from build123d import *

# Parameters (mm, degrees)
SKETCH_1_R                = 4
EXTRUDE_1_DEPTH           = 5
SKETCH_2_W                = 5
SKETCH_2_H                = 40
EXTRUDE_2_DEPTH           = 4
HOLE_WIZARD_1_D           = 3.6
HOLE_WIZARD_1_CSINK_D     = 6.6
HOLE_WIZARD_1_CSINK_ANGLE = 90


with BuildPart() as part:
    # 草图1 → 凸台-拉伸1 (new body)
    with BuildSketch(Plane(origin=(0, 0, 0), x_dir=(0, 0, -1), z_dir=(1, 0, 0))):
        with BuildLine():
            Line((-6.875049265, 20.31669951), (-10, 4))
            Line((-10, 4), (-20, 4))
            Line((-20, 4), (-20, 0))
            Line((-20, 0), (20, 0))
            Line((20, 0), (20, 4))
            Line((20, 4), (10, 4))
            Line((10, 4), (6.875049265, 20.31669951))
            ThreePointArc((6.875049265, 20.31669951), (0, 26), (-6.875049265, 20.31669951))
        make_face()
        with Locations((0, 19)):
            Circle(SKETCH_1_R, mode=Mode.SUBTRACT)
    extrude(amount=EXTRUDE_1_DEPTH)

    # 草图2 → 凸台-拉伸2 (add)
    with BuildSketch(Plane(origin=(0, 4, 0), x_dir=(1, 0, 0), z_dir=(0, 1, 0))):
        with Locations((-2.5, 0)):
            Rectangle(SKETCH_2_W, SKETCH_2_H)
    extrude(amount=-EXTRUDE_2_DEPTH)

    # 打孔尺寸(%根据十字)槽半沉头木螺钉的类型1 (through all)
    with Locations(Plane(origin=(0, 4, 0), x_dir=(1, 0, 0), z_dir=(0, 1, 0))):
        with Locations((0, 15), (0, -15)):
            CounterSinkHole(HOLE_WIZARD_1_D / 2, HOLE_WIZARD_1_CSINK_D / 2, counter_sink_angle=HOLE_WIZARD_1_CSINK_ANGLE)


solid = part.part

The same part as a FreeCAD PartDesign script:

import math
import FreeCAD as App
import Part
import Sketcher

V = App.Vector
Q = App.Units.Quantity


def add_polygon(sketch, points):
    """Adds a closed chain of lines whose ends are joined by coincident constraints."""
    first, n = sketch.GeometryCount, len(points)
    for a, b in zip(points, points[1:] + points[:1]):
        sketch.addGeometry(Part.LineSegment(App.Vector(*a, 0), App.Vector(*b, 0)), False)
    for i in range(n):
        sketch.addConstraint(Sketcher.Constraint("Coincident", first + i, 2, first + (i + 1) % n, 1))

doc = App.newDocument("Part")
body = doc.addObject("PartDesign::Body", "Body")

sketch1 = body.newObject("Sketcher::SketchObject", "Sketch")
sketch1.AttachmentSupport = (doc.getObject("YZ_Plane"), [""])
sketch1.MapMode = "FlatFace"
sketch1.addGeometry([
    Part.LineSegment(V(20.3167, 6.875049, 0), V(4, 10, 0)),
    Part.LineSegment(V(4, 10, 0), V(4, 20, 0)),
    Part.LineSegment(V(4, 20, 0), V(0, 20, 0)),
    Part.LineSegment(V(0, 20, 0), V(0, -20, 0)),
    Part.LineSegment(V(0, -20, 0), V(4, -20, 0)),
    Part.LineSegment(V(4, -20, 0), V(4, -10, 0)),
    Part.LineSegment(V(4, -10, 0), V(20.3167, -6.875049, 0)),
    Part.ArcOfCircle(Part.Circle(V(19, 0, 0), V(0, 0, 1), 7), math.radians(-79.158081), math.radians(79.158081)),
    Part.Circle(V(19, 0, 0), V(0, 0, 1), 4),
], False)
sketch1.addConstraint([
    Sketcher.Constraint("Coincident", 0, 2, 1, 1),
    Sketcher.Constraint("Coincident", 1, 2, 2, 1),
    Sketcher.Constraint("Coincident", 2, 2, 3, 1),
    Sketcher.Constraint("Coincident", 3, 2, 4, 1),
    Sketcher.Constraint("Coincident", 4, 2, 5, 1),
    Sketcher.Constraint("Coincident", 5, 2, 6, 1),
    Sketcher.Constraint("Tangent", 6, 2, 7, 1),
    Sketcher.Constraint("Tangent", 7, 2, 0, 1),
    Sketcher.Constraint("Vertical", 1),
    Sketcher.Constraint("Horizontal", 2),
    Sketcher.Constraint("Vertical", 3),
    Sketcher.Constraint("Horizontal", 4),
    Sketcher.Constraint("Vertical", 5),
    Sketcher.Constraint("Coincident", 8, 3, 7, 3),
    Sketcher.Constraint("Symmetric", 2, 2, 3, 2, -1, 1),
    Sketcher.Constraint("Symmetric", 0, 2, 5, 2, -1),
    Sketcher.Constraint("PointOnObject", 7, 3, -1),
    Sketcher.Constraint("Diameter", 8, Q("8 mm")),
    Sketcher.Constraint("Radius", 7, Q("7 mm")),
    Sketcher.Constraint("DistanceX", 2, 2, 2, 1, Q("4 mm")),
    Sketcher.Constraint("DistanceY", 1, 1, 1, 2, Q("10 mm")),
    Sketcher.Constraint("DistanceY", 3, 2, 3, 1, Q("40 mm")),
    Sketcher.Constraint("DistanceX", -1, 1, 7, 3, Q("19 mm")),
])
pad1 = body.newObject("PartDesign::Pad", "Pad")
pad1.Profile = sketch1
pad1.Length = 5

sketch2 = body.newObject("Sketcher::SketchObject", "Sketch001")
sketch2.AttachmentSupport = (doc.getObject("XZ_Plane"), [""])
sketch2.MapMode = "FlatFace"
sketch2.AttachmentOffset = App.Placement(V(0, 0, -4), App.Rotation())
add_polygon(sketch2, [(-5, -20), (-5, 20), (0, 20), (0, -20)])
sketch2.addConstraint([
    Sketcher.Constraint("Vertical", 0),
    Sketcher.Constraint("Horizontal", 1),
    Sketcher.Constraint("Vertical", 2),
    Sketcher.Constraint("Horizontal", 3),
    Sketcher.Constraint("Symmetric", 1, 2, 2, 2, -1, 1),
    Sketcher.Constraint("DistanceX", 1, 1, 1, 2, Q("5 mm")),
    Sketcher.Constraint("DistanceY", 0, 1, 0, 2, Q("40 mm")),
])
pad2 = body.newObject("PartDesign::Pad", "Pad001")
pad2.Profile = sketch2
pad2.Length = 4

sketch3 = body.newObject("Sketcher::SketchObject", "Sketch002")
sketch3.AttachmentSupport = (doc.getObject("XZ_Plane"), [""])
sketch3.MapMode = "FlatFace"
sketch3.AttachmentOffset = App.Placement(V(0, 0, -4), App.Rotation())
sketch3.addGeometry([
    Part.Circle(V(0, -15, 0), V(0, 0, 1), 1.8),
    Part.Circle(V(0, 15, 0), V(0, 0, 1), 1.8),
], False)
sketch3.addConstraint([
    Sketcher.Constraint("Equal", 0, 1),
    Sketcher.Constraint("Symmetric", 0, 3, 1, 3, -1, 1),
    Sketcher.Constraint("PointOnObject", 0, 3, -2),
    Sketcher.Constraint("Diameter", 0, Q("3.6 mm")),
    Sketcher.Constraint("DistanceY", 0, 3, -1, 1, Q("15 mm")),
])
doc.recompute()
hole = body.newObject("PartDesign::Hole", "Hole")
hole.Profile = sketch3
hole.ThreadType = "None"
hole.Diameter = 3.6
hole.DepthType = "ThroughAll"
hole.HoleCutType = "Countersink"
hole.HoleCutDiameter = 6.6
hole.HoleCutCountersinkAngle = 90
hole.Reversed = True

doc.recompute()
